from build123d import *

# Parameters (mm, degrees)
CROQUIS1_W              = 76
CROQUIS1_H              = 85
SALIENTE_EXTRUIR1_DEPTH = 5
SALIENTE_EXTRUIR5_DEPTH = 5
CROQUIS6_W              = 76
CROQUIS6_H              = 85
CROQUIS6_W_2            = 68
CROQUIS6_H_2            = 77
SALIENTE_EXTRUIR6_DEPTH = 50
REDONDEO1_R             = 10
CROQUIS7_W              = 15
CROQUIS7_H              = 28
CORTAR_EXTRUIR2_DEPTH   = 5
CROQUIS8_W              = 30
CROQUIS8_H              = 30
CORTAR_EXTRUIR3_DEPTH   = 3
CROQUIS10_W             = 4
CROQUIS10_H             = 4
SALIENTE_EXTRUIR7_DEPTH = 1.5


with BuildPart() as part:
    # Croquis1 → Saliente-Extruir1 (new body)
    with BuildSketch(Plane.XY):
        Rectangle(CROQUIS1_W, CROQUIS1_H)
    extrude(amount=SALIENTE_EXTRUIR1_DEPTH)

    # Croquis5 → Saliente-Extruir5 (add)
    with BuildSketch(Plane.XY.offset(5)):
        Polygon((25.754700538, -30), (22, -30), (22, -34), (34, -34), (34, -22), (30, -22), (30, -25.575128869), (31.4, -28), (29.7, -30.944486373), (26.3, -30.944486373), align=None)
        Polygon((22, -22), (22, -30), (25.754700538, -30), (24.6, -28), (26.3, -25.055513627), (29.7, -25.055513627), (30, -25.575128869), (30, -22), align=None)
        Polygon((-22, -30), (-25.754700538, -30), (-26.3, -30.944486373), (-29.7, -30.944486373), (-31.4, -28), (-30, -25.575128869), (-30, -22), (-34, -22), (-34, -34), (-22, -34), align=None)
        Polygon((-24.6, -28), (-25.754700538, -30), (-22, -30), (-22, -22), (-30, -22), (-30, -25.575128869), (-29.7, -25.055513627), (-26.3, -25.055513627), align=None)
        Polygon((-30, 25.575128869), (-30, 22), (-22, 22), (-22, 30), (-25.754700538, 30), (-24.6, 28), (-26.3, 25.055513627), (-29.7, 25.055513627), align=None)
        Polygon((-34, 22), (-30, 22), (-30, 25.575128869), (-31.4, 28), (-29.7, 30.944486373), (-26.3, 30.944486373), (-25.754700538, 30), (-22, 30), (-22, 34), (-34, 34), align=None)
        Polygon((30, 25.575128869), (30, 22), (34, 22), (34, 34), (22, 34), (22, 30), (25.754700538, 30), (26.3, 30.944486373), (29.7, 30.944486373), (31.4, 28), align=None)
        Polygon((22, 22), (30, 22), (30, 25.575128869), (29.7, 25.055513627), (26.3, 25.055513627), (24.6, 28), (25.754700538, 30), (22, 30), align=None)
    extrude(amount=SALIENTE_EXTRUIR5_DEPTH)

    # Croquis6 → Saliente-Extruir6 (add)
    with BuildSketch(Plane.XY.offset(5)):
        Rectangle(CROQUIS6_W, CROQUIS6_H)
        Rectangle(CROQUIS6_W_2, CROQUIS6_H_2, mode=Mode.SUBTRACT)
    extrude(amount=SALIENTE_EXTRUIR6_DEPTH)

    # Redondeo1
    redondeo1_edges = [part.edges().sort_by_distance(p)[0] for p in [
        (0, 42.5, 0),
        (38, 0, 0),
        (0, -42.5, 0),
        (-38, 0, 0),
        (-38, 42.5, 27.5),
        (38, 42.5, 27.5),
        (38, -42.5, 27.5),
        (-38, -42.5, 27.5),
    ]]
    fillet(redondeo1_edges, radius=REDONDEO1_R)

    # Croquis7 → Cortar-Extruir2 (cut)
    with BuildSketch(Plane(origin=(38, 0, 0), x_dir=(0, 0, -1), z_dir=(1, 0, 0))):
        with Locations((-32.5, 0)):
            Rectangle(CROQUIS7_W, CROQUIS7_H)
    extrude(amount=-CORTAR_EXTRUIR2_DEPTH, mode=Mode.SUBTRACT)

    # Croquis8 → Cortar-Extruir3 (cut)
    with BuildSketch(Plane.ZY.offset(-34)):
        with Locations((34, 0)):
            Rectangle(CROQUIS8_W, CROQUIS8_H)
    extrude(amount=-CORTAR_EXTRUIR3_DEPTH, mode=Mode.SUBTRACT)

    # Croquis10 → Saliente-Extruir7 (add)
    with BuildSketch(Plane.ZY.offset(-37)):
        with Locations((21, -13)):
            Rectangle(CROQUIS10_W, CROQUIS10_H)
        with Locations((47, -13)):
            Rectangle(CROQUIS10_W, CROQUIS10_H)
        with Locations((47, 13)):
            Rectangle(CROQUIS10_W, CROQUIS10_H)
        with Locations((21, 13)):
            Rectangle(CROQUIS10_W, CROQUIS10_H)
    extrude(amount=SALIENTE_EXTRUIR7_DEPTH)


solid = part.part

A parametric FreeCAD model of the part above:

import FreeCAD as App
import Part
import Sketcher
Q = App.Units.Quantity


def edges_at(feature, points):
    """Names of the edges that pass closest to the given points."""
    edges = feature.Shape.Edges
    near = lambda p: min(range(len(edges)), key=lambda i: edges[i].distToShape(Part.Vertex(*p))[0])
    return sorted({f"Edge{near(p) + 1}" for p in points})

doc = App.newDocument("Part")
body = doc.addObject("PartDesign::Body", "Body")

# Sketch on XY plane
sketch1 = body.newObject("Sketcher::SketchObject", "Sketch")
sketch1.AttachmentSupport = (doc.getObject("XY_Plane"), [""])
sketch1.MapMode = "FlatFace"
sketch1.addGeometry([
    Part.LineSegment(App.Vector(-38, 42, 0), App.Vector(-38, -42, 0)),
    Part.LineSegment(App.Vector(-38, -42, 0), App.Vector(38, -42, 0)),
    Part.LineSegment(App.Vector(38, -42, 0), App.Vector(38, 42, 0)),
    Part.LineSegment(App.Vector(38, 42, 0), App.Vector(-38, 42, 0)),
], False)
sketch1.addConstraint([
    Sketcher.Constraint("Coincident", 0, 2, 1, 1),
    Sketcher.Constraint("Coincident", 1, 2, 2, 1),
    Sketcher.Constraint("Coincident", 2, 2, 3, 1),
    Sketcher.Constraint("Coincident", 3, 2, 0, 1),
    Sketcher.Constraint("Vertical", 0),
    Sketcher.Constraint("Horizontal", 1),
    Sketcher.Constraint("Vertical", 2),
    Sketcher.Constraint("Horizontal", 3),
    Sketcher.Constraint("Symmetric", 0, 2, 2, 2, -1, 1),
    Sketcher.Constraint("DistanceX", 1, 1, 1, 2, 76.0),
    Sketcher.Constraint("DistanceY", 0, 2, 0, 1, 85.0),
])
pad1 = body.newObject("PartDesign::Pad", "Pad")
pad1.Profile = sketch1
pad1.Length = 5

# Sketch on XY plane
sketch2 = body.newObject("Sketcher::SketchObject", "Sketch001")
sketch2.AttachmentSupport = (doc.getObject("XY_Plane"), [""])
sketch2.MapMode = "FlatFace"
sketch2.AttachmentOffset = App.Placement(App.Vector(0, 0, 5), App.Rotation())
sketch2.addGeometry([
    Part.LineSegment(App.Vector(22, -34, 0), App.Vector(34, -34, 0)),  # 0
    Part.LineSegment(App.Vector(34, -34, 0), App.Vector(34, -22, 0)),  # 1
    Part.LineSegment(App.Vector(34, -22, 0), App.Vector(22, -22, 0)),  # 2
    Part.LineSegment(App.Vector(22, -22, 0), App.Vector(22, -34, 0)),  # 3
    Part.LineSegment(App.Vector(30, -25.6, 0), App.Vector(31.4, -28, 0)),  # 4
    Part.LineSegment(App.Vector(31.4, -28, 0), App.Vector(29.7, -30.9, 0)),  # 5
    Part.LineSegment(App.Vector(29.7, -30.9, 0), App.Vector(26.3, -30.9, 0)),  # 6
    Part.LineSegment(App.Vector(26.3, -30.9, 0), App.Vector(25.8, -30, 0)),  # 7
    Part.LineSegment(App.Vector(25.8, -30, 0), App.Vector(24.6, -28, 0)),  # 8
    Part.LineSegment(App.Vector(24.6, -28, 0), App.Vector(26.3, -25.1, 0)),  # 9
    Part.LineSegment(App.Vector(26.3, -25.1, 0), App.Vector(29.7, -25.1, 0)),  # 10
    Part.LineSegment(App.Vector(29.7, -25.1, 0), App.Vector(30, -25.6, 0)),  # 11
    Part.LineSegment(App.Vector(-34, -22, 0), App.Vector(-34, -34, 0)),  # 12
    Part.LineSegment(App.Vector(-34, -34, 0), App.Vector(-22, -34, 0)),  # 13
    Part.LineSegment(App.Vector(-22, -34, 0), App.Vector(-22, -22, 0)),  # 14
    Part.LineSegment(App.Vector(-22, -22, 0), App.Vector(-34, -22, 0)),  # 15
    Part.LineSegment(App.Vector(-25.8, -30, 0), App.Vector(-26.3, -30.9, 0)),  # 16
    Part.LineSegment(App.Vector(-26.3, -30.9, 0), App.Vector(-29.7, -30.9, 0)),  # 17
    Part.LineSegment(App.Vector(-29.7, -30.9, 0), App.Vector(-31.4, -28, 0)),  # 18
    Part.LineSegment(App.Vector(-31.4, -28, 0), App.Vector(-30, -25.6, 0)),  # 19
    Part.LineSegment(App.Vector(-30, -25.6, 0), App.Vector(-29.7, -25.1, 0)),  # 20
    Part.LineSegment(App.Vector(-29.7, -25.1, 0), App.Vector(-26.3, -25.1, 0)),  # 21
    Part.LineSegment(App.Vector(-26.3, -25.1, 0), App.Vector(-24.6, -28, 0)),  # 22
    Part.LineSegment(App.Vector(-24.6, -28, 0), App.Vector(-25.8, -30, 0)),  # 23
    Part.LineSegment(App.Vector(-22, 22, 0), App.Vector(-22, 34, 0)),  # 24
    Part.LineSegment(App.Vector(-22, 34, 0), App.Vector(-34, 34, 0)),  # 25
    Part.LineSegment(App.Vector(-34, 34, 0), App.Vector(-34, 22, 0)),  # 26
    Part.LineSegment(App.Vector(-34, 22, 0), App.Vector(-22, 22, 0)),  # 27
    Part.LineSegment(App.Vector(-25.8, 30, 0), App.Vector(-24.6, 28, 0)),  # 28
    Part.LineSegment(App.Vector(-24.6, 28, 0), App.Vector(-26.3, 25.1, 0)),  # 29
    Part.LineSegment(App.Vector(-26.3, 25.1, 0), App.Vector(-29.7, 25.1, 0)),  # 30
    Part.LineSegment(App.Vector(-29.7, 25.1, 0), App.Vector(-30, 25.6, 0)),  # 31
    Part.LineSegment(App.Vector(-30, 25.6, 0), App.Vector(-31.4, 28, 0)),  # 32
    Part.LineSegment(App.Vector(-31.4, 28, 0), App.Vector(-29.7, 30.9, 0)),  # 33
    Part.LineSegment(App.Vector(-29.7, 30.9, 0), App.Vector(-26.3, 30.9, 0)),  # 34
    Part.LineSegment(App.Vector(-26.3, 30.9, 0), App.Vector(-25.8, 30, 0)),  # 35
    Part.LineSegment(App.Vector(34, 22, 0), App.Vector(34, 34, 0)),  # 36
    Part.LineSegment(App.Vector(34, 34, 0), App.Vector(22, 34, 0)),  # 37
    Part.LineSegment(App.Vector(22, 34, 0), App.Vector(22, 22, 0)),  # 38
    Part.LineSegment(App.Vector(22, 22, 0), App.Vector(34, 22, 0)),  # 39
    Part.LineSegment(App.Vector(25.8, 30, 0), App.Vector(26.3, 30.9, 0)),  # 40
    Part.LineSegment(App.Vector(26.3, 30.9, 0), App.Vector(29.7, 30.9, 0)),  # 41
    Part.LineSegment(App.Vector(29.7, 30.9, 0), App.Vector(31.4, 28, 0)),  # 42
    Part.LineSegment(App.Vector(31.4, 28, 0), App.Vector(30, 25.6, 0)),  # 43
    Part.LineSegment(App.Vector(30, 25.6, 0), App.Vector(29.7, 25.1, 0)),  # 44
    Part.LineSegment(App.Vector(29.7, 25.1, 0), App.Vector(26.3, 25.1, 0)),  # 45
    Part.LineSegment(App.Vector(26.3, 25.1, 0), App.Vector(24.6, 28, 0)),  # 46
    Part.LineSegment(App.Vector(24.6, 28, 0), App.Vector(25.8, 30, 0)),  # 47
], False)
sketch2.addConstraint([
    Sketcher.Constraint("Coincident", 0, 2, 1, 1),
    Sketcher.Constraint("Coincident", 1, 2, 2, 1),
    Sketcher.Constraint("Coincident", 2, 2, 3, 1),
    Sketcher.Constraint("Coincident", 3, 2, 0, 1),
    Sketcher.Constraint("Coincident", 4, 2, 5, 1),
    Sketcher.Constraint("Coincident", 5, 2, 6, 1),
    Sketcher.Constraint("Coincident", 6, 2, 7, 1),
    Sketcher.Constraint("Coincident", 7, 2, 8, 1),
    Sketcher.Constraint("Coincident", 8, 2, 9, 1),
    Sketcher.Constraint("Coincident", 9, 2, 10, 1),
    Sketcher.Constraint("Coincident", 10, 2, 11, 1),
    Sketcher.Constraint("Coincident", 11, 2, 4, 1),
    Sketcher.Constraint("Coincident", 12, 2, 13, 1),
    Sketcher.Constraint("Coincident", 13, 2, 14, 1),
    Sketcher.Constraint("Coincident", 14, 2, 15, 1),
    Sketcher.Constraint("Coincident", 15, 2, 12, 1),
    Sketcher.Constraint("Coincident", 16, 2, 17, 1),
    Sketcher.Constraint("Coincident", 17, 2, 18, 1),
    Sketcher.Constraint("Coincident", 18, 2, 19, 1),
    Sketcher.Constraint("Coincident", 19, 2, 20, 1),
    Sketcher.Constraint("Coincident", 20, 2, 21, 1),
    Sketcher.Constraint("Coincident", 21, 2, 22, 1),
    Sketcher.Constraint("Coincident", 22, 2, 23, 1),
    Sketcher.Constraint("Coincident", 23, 2, 16, 1),
    Sketcher.Constraint("Coincident", 24, 2, 25, 1),
    Sketcher.Constraint("Coincident", 25, 2, 26, 1),
    Sketcher.Constraint("Coincident", 26, 2, 27, 1),
    Sketcher.Constraint("Coincident", 27, 2, 24, 1),
    Sketcher.Constraint("Coincident", 28, 2, 29, 1),
    Sketcher.Constraint("Coincident", 29, 2, 30, 1),
    Sketcher.Constraint("Coincident", 30, 2, 31, 1),
    Sketcher.Constraint("Coincident", 31, 2, 32, 1),
    Sketcher.Constraint("Coincident", 32, 2, 33, 1),
    Sketcher.Constraint("Coincident", 33, 2, 34, 1),
    Sketcher.Constraint("Coincident", 34, 2, 35, 1),
    Sketcher.Constraint("Coincident", 35, 2, 28, 1),
    Sketcher.Constraint("Coincident", 36, 2, 37, 1),
    Sketcher.Constraint("Coincident", 37, 2, 38, 1),
    Sketcher.Constraint("Coincident", 38, 2, 39, 1),
    Sketcher.Constraint("Coincident", 39, 2, 36, 1),
    Sketcher.Constraint("Coincident", 40, 2, 41, 1),
    Sketcher.Constraint("Coincident", 41, 2, 42, 1),
    Sketcher.Constraint("Coincident", 42, 2, 43, 1),
    Sketcher.Constraint("Coincident", 43, 2, 44, 1),
    Sketcher.Constraint("Coincident", 44, 2, 45, 1),
    Sketcher.Constraint("Coincident", 45, 2, 46, 1),
    Sketcher.Constraint("Coincident", 46, 2, 47, 1),
    Sketcher.Constraint("Coincident", 47, 2, 40, 1),
    Sketcher.Constraint("Horizontal", 0),
    Sketcher.Constraint("Vertical", 1),
    Sketcher.Constraint("Horizontal", 2),
    Sketcher.Constraint("Vertical", 3),
    Sketcher.Constraint("Horizontal", 6),
    Sketcher.Constraint("Horizontal", 10),
    Sketcher.Constraint("Vertical", 12),
    Sketcher.Constraint("Horizontal", 13),
    Sketcher.Constraint("Vertical", 14),
    Sketcher.Constraint("Horizontal", 15),
    Sketcher.Constraint("Horizontal", 17),
    Sketcher.Constraint("Horizontal", 21),
    Sketcher.Constraint("Vertical", 24),
    Sketcher.Constraint("Horizontal", 25),
    Sketcher.Constraint("Vertical", 26),
    Sketcher.Constraint("Horizontal", 27),
    Sketcher.Constraint("Horizontal", 30),
    Sketcher.Constraint("Horizontal", 34),
    Sketcher.Constraint("Vertical", 36),
    Sketcher.Constraint("Horizontal", 37),
    Sketcher.Constraint("Vertical", 38),
    Sketcher.Constraint("Horizontal", 39),
    Sketcher.Constraint("Horizontal", 41),
    Sketcher.Constraint("Horizontal", 45),
    Sketcher.Constraint("Symmetric", 3, 2, 24, 2, -1, 1),
    Sketcher.Constraint("Symmetric", 1, 2, 26, 2, -1, 1),
    Sketcher.Constraint("Symmetric", 8, 2, 28, 2, -1, 1),
    Sketcher.Constraint("Symmetric", 9, 2, 29, 2, -1, 1),
    Sketcher.Constraint("Symmetric", 11, 2, 31, 2, -1, 1),
    Sketcher.Constraint("Symmetric", 4, 2, 32, 2, -1, 1),
    Sketcher.Constraint("Symmetric", 5, 2, 33, 2, -1, 1),
    Sketcher.Constraint("Symmetric", 7, 2, 35, 2, -1, 1),
    Sketcher.Constraint("Symmetric", 12, 2, 36, 2, -1, 1),
    Sketcher.Constraint("Symmetric", 14, 2, 38, 2, -1, 1),
    Sketcher.Constraint("Symmetric", 16, 2, 40, 2, -1, 1),
    Sketcher.Constraint("Symmetric", 18, 2, 42, 2, -1, 1),
    Sketcher.Constraint("Symmetric", 19, 2, 43, 2, -1, 1),
    Sketcher.Constraint("Symmetric", 20, 2, 44, 2, -1, 1),
    Sketcher.Constraint("Symmetric", 22, 2, 46, 2, -1, 1),
    Sketcher.Constraint("Symmetric", 23, 2, 47, 2, -1, 1),
    Sketcher.Constraint("Symmetric", 0, 2, 12, 2, -2),
    Sketcher.Constraint("Symmetric", 2, 2, 14, 2, -2),
    Sketcher.Constraint("Symmetric", 6, 2, 16, 2, -2),
    Sketcher.Constraint("Symmetric", 4, 2, 18, 2, -2),
    Sketcher.Constraint("Symmetric", 11, 2, 19, 2, -2),
    Sketcher.Constraint("Symmetric", 10, 2, 20, 2, -2),
    Sketcher.Constraint("Symmetric", 8, 2, 22, 2, -2),
    Sketcher.Constraint("Symmetric", 7, 2, 23, 2, -2),
    Sketcher.Constraint("Parallel", 4, 7),
    Sketcher.Constraint("Parallel", 7, 8),
    Sketcher.Constraint("Parallel", 5, 9),
    Sketcher.Constraint("Parallel", 8, 11),
    Sketcher.Constraint("Parallel", 9, 16),
    Sketcher.Constraint("Parallel", 11, 18),
    Sketcher.Constraint("Parallel", 18, 22),
    Sketcher.Constraint("Parallel", 28, 31),
    Sketcher.Constraint("Parallel", 32, 35),
    Sketcher.Constraint("Parallel", 35, 42),
    Sketcher.Constraint("Parallel", 42, 46),
    Sketcher.Constraint("Horizontal", 4, 2, 8, 2),
    Sketcher.Constraint("Vertical", 6, 2, 9, 2),
    Sketcher.Constraint("Equal", 39, 1),
    Sketcher.Constraint("DistanceX", 0, 1, 0, 2, 12.0),
    Sketcher.Constraint("Angle", 4, Q("-60 deg")),
    Sketcher.Constraint("DistanceX", 6, 2, 6, 1, 3.4),
    Sketcher.Constraint("DistanceX", -1, 1, 0, 2, 34.0),
    Sketcher.Constraint("DistanceY", 0, 2, -1, 1, 34.0),
    Sketcher.Constraint("DistanceY", 4, 2, -1, 1, 28.0),
    Sketcher.Constraint("DistanceY", 7, 2, -1, 1, 30.0),
    Sketcher.Constraint("DistanceX", -1, 1, 11, 2, 30.0),
    Sketcher.Constraint("Distance", 4, 2.8),
    Sketcher.Constraint("Distance", 5, 3.4),
])
pad2 = body.newObject("PartDesign::Pad", "Pad001")
pad2.Profile = sketch2
pad2.Length = 5

# Sketch on XY plane
sketch3 = body.newObject("Sketcher::SketchObject", "Sketch002")
sketch3.AttachmentSupport = (doc.getObject("XY_Plane"), [""])
sketch3.MapMode = "FlatFace"
sketch3.AttachmentOffset = App.Placement(App.Vector(0, 0, 5), App.Rotation())
sketch3.addGeometry([
    Part.LineSegment(App.Vector(-38, 42, 0), App.Vector(-38, -42, 0)),  # 0
    Part.LineSegment(App.Vector(-38, -42, 0), App.Vector(38, -42, 0)),  # 1
    Part.LineSegment(App.Vector(38, -42, 0), App.Vector(38, 42, 0)),  # 2
    Part.LineSegment(App.Vector(38, 42, 0), App.Vector(-38, 42, 0)),  # 3
    Part.LineSegment(App.Vector(34, -38, 0), App.Vector(-34, -38, 0)),  # 4
    Part.LineSegment(App.Vector(-34, -38, 0), App.Vector(-34, 38, 0)),  # 5
    Part.LineSegment(App.Vector(-34, 38, 0), App.Vector(34, 38, 0)),  # 6
    Part.LineSegment(App.Vector(34, 38, 0), App.Vector(34, -38, 0)),  # 7
], False)
sketch3.addConstraint([
    Sketcher.Constraint("Coincident", 0, 2, 1, 1),
    Sketcher.Constraint("Coincident", 1, 2, 2, 1),
    Sketcher.Constraint("Coincident", 2, 2, 3, 1),
    Sketcher.Constraint("Coincident", 3, 2, 0, 1),
    Sketcher.Constraint("Coincident", 4, 2, 5, 1),
    Sketcher.Constraint("Coincident", 5, 2, 6, 1),
    Sketcher.Constraint("Coincident", 6, 2, 7, 1),
    Sketcher.Constraint("Coincident", 7, 2, 4, 1),
    Sketcher.Constraint("Vertical", 0),
    Sketcher.Constraint("Horizontal", 1),
    Sketcher.Constraint("Vertical", 2),
    Sketcher.Constraint("Horizontal", 3),
    Sketcher.Constraint("Horizontal", 4),
    Sketcher.Constraint("Vertical", 5),
    Sketcher.Constraint("Horizontal", 6),
    Sketcher.Constraint("Vertical", 7),
    Sketcher.Constraint("Symmetric", 0, 2, 2, 2, -1, 1),
    Sketcher.Constraint("Symmetric", 4, 2, 6, 2, -1, 1),
    Sketcher.Constraint("DistanceX", 1, 1, 1, 2, 76.0),
    Sketcher.Constraint("DistanceX", 4, 2, 4, 1, 68.0),
    Sketcher.Constraint("DistanceY", 0, 2, 0, 1, 85.0),
    Sketcher.Constraint("DistanceY", 5, 1, 5, 2, 77.0),
])
pad3 = body.newObject("PartDesign::Pad", "Pad002")
pad3.Profile = sketch3
pad3.Length = 50
doc.recompute()

fillet = body.newObject("PartDesign::Fillet", "Fillet")
fillet.Base = (pad3, edges_at(pad3, [
    (0, 42.5, 0),
    (38, 0, 0),
    (0, -42.5, 0),
    (-38, 0, 0),
    (-38, 42.5, 27.5),
    (38, 42.5, 27.5),
    (38, -42.5, 27.5),
    (-38, -42.5, 27.5),
]))
fillet.Radius = 10

# Sketch on YZ plane
sketch4 = body.newObject("Sketcher::SketchObject", "Sketch003")
sketch4.AttachmentSupport = (doc.getObject("YZ_Plane"), [""])
sketch4.MapMode = "FlatFace"
sketch4.AttachmentOffset = App.Placement(App.Vector(0, 0, 38), App.Rotation())
sketch4.addGeometry([
    Part.LineSegment(App.Vector(14, 40, 0), App.Vector(-14, 40, 0)),
    Part.LineSegment(App.Vector(-14, 40, 0), App.Vector(-14, 25, 0)),
    Part.LineSegment(App.Vector(-14, 25, 0), App.Vector(14, 25, 0)),
    Part.LineSegment(App.Vector(14, 25, 0), App.Vector(14, 40, 0)),
], False)
sketch4.addConstraint([
    Sketcher.Constraint("Coincident", 0, 2, 1, 1),
    Sketcher.Constraint("Coincident", 1, 2, 2, 1),
    Sketcher.Constraint("Coincident", 2, 2, 3, 1),
    Sketcher.Constraint("Coincident", 3, 2, 0, 1),
    Sketcher.Constraint("Horizontal", 0),
    Sketcher.Constraint("Vertical", 1),
    Sketcher.Constraint("Horizontal", 2),
    Sketcher.Constraint("Vertical", 3),
    Sketcher.Constraint("DistanceX", 0, 2, 0, 1, 28.0),
    Sketcher.Constraint("DistanceY", 1, 2, 1, 1, 15.0),
    Sketcher.Constraint("DistanceX", 0, 2, -1, 1, 14.0),
    Sketcher.Constraint("DistanceY", -1, 1, 0, 2, 40.0),
])
pocket1 = body.newObject("PartDesign::Pocket", "Pocket")
pocket1.Profile = sketch4
pocket1.Length = 5

# Sketch on YZ plane
sketch5 = body.newObject("Sketcher::SketchObject", "Sketch004")
sketch5.AttachmentSupport = (doc.getObject("YZ_Plane"), [""])
sketch5.MapMode = "FlatFace"
sketch5.AttachmentOffset = App.Placement(App.Vector(0, 0, 34), App.Rotation())
sketch5.addGeometry([
    Part.LineSegment(App.Vector(15, 19, 0), App.Vector(-15, 19, 0)),
    Part.LineSegment(App.Vector(-15, 19, 0), App.Vector(-15, 49, 0)),
    Part.LineSegment(App.Vector(-15, 49, 0), App.Vector(15, 49, 0)),
    Part.LineSegment(App.Vector(15, 49, 0), App.Vector(15, 19, 0)),
], False)
sketch5.addConstraint([
    Sketcher.Constraint("Coincident", 0, 2, 1, 1),
    Sketcher.Constraint("Coincident", 1, 2, 2, 1),
    Sketcher.Constraint("Coincident", 2, 2, 3, 1),
    Sketcher.Constraint("Coincident", 3, 2, 0, 1),
    Sketcher.Constraint("Horizontal", 0),
    Sketcher.Constraint("Vertical", 1),
    Sketcher.Constraint("Horizontal", 2),
    Sketcher.Constraint("Vertical", 3),
    Sketcher.Constraint("Equal", 2, 1),
    Sketcher.Constraint("DistanceX", 0, 2, 0, 1, 30.0),
    Sketcher.Constraint("DistanceX", 0, 2, -1, 1, 15.0),
    Sketcher.Constraint("DistanceY", -1, 1, 0, 2, 19.0),
])
pocket2 = body.newObject("PartDesign::Pocket", "Pocket001")
pocket2.Profile = sketch5
pocket2.Length = 3
pocket2.Reversed = True

# Sketch on YZ plane
sketch6 = body.newObject("Sketcher::SketchObject", "Sketch005")
sketch6.AttachmentSupport = (doc.getObject("YZ_Plane"), [""])
sketch6.MapMode = "FlatFace"
sketch6.AttachmentOffset = App.Placement(App.Vector(0, 0, 37), App.Rotation())
sketch6.addGeometry([
    Part.LineSegment(App.Vector(-11, 19, 0), App.Vector(-15, 19, 0)),  # 0
    Part.LineSegment(App.Vector(-15, 19, 0), App.Vector(-15, 23, 0)),  # 1
    Part.LineSegment(App.Vector(-15, 23, 0), App.Vector(-11, 23, 0)),  # 2
    Part.LineSegment(App.Vector(-11, 23, 0), App.Vector(-11, 19, 0)),  # 3
    Part.LineSegment(App.Vector(-11, 45, 0), App.Vector(-15, 45, 0)),  # 4
    Part.LineSegment(App.Vector(-15, 45, 0), App.Vector(-15, 49, 0)),  # 5
    Part.LineSegment(App.Vector(-15, 49, 0), App.Vector(-11, 49, 0)),  # 6
    Part.LineSegment(App.Vector(-11, 49, 0), App.Vector(-11, 45, 0)),  # 7
    Part.LineSegment(App.Vector(15, 45, 0), App.Vector(11, 45, 0)),  # 8
    Part.LineSegment(App.Vector(11, 45, 0), App.Vector(11, 49, 0)),  # 9
    Part.LineSegment(App.Vector(11, 49, 0), App.Vector(15, 49, 0)),  # 10
    Part.LineSegment(App.Vector(15, 49, 0), App.Vector(15, 45, 0)),  # 11
    Part.LineSegment(App.Vector(15, 19, 0), App.Vector(11, 19, 0)),  # 12
    Part.LineSegment(App.Vector(11, 19, 0), App.Vector(11, 23, 0)),  # 13
    Part.LineSegment(App.Vector(11, 23, 0), App.Vector(15, 23, 0)),  # 14
    Part.LineSegment(App.Vector(15, 23, 0), App.Vector(15, 19, 0)),  # 15
], False)
sketch6.addConstraint([
    Sketcher.Constraint("Coincident", 0, 2, 1, 1),
    Sketcher.Constraint("Coincident", 1, 2, 2, 1),
    Sketcher.Constraint("Coincident", 2, 2, 3, 1),
    Sketcher.Constraint("Coincident", 3, 2, 0, 1),
    Sketcher.Constraint("Coincident", 4, 2, 5, 1),
    Sketcher.Constraint("Coincident", 5, 2, 6, 1),
    Sketcher.Constraint("Coincident", 6, 2, 7, 1),
    Sketcher.Constraint("Coincident", 7, 2, 4, 1),
    Sketcher.Constraint("Coincident", 8, 2, 9, 1),
    Sketcher.Constraint("Coincident", 9, 2, 10, 1),
    Sketcher.Constraint("Coincident", 10, 2, 11, 1),
    Sketcher.Constraint("Coincident", 11, 2, 8, 1),
    Sketcher.Constraint("Coincident", 12, 2, 13, 1),
    Sketcher.Constraint("Coincident", 13, 2, 14, 1),
    Sketcher.Constraint("Coincident", 14, 2, 15, 1),
    Sketcher.Constraint("Coincident", 15, 2, 12, 1),
    Sketcher.Constraint("Horizontal", 0),
    Sketcher.Constraint("Vertical", 1),
    Sketcher.Constraint("Horizontal", 2),
    Sketcher.Constraint("Vertical", 3),
    Sketcher.Constraint("Horizontal", 4),
    Sketcher.Constraint("Vertical", 5),
    Sketcher.Constraint("Horizontal", 6),
    Sketcher.Constraint("Vertical", 7),
    Sketcher.Constraint("Horizontal", 8),
    Sketcher.Constraint("Vertical", 9),
    Sketcher.Constraint("Horizontal", 10),
    Sketcher.Constraint("Vertical", 11),
    Sketcher.Constraint("Horizontal", 12),
    Sketcher.Constraint("Vertical", 13),
    Sketcher.Constraint("Horizontal", 14),
    Sketcher.Constraint("Vertical", 15),
    Sketcher.Constraint("Symmetric", 7, 2, 8, 2, -2),
    Sketcher.Constraint("Symmetric", 5, 2, 10, 2, -2),
    Sketcher.Constraint("Symmetric", 3, 2, 12, 2, -2),
    Sketcher.Constraint("Symmetric", 1, 2, 14, 2, -2),
    Sketcher.Constraint("Vertical", 1, 2, 4, 2),
    Sketcher.Constraint("Vertical", 3, 2, 6, 2),
    Sketcher.Constraint("Equal", 14, 1),
    Sketcher.Constraint("Equal", 3, 5),
    Sketcher.Constraint("DistanceX", 0, 2, 0, 1, 4.0),
    Sketcher.Constraint("DistanceX", 0, 2, -1, 1, 15.0),
    Sketcher.Constraint("DistanceY", -1, 1, 0, 2, 19.0),
    Sketcher.Constraint("DistanceY", -1, 1, 4, 2, 45.0),
])
pad4 = body.newObject("PartDesign::Pad", "Pad003")
pad4.Profile = sketch6
pad4.Length = 1.5
pad4.Reversed = True

doc.recompute()
